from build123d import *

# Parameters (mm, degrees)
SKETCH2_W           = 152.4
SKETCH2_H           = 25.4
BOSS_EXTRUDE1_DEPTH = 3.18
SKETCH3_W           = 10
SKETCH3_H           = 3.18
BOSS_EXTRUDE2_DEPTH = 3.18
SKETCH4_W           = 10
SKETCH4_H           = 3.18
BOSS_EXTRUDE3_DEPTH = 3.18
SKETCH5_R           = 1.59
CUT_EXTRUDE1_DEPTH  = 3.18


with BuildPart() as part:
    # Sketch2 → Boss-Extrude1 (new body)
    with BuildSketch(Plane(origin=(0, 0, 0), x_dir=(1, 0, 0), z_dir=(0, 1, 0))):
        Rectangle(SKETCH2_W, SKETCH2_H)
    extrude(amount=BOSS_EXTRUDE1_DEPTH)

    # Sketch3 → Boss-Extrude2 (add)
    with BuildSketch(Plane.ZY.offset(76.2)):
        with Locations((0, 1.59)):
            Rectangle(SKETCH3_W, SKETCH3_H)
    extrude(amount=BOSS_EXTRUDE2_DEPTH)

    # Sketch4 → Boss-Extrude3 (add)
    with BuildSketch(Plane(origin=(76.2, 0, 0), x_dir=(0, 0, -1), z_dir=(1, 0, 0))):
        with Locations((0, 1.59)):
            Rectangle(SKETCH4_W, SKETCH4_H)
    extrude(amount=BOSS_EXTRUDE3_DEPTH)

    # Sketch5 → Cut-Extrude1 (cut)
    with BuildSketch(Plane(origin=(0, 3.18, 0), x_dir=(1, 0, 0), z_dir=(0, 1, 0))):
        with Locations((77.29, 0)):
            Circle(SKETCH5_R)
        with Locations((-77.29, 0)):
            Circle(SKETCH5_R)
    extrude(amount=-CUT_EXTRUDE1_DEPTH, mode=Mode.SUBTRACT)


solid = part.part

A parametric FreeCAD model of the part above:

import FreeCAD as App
import Part
import Sketcher
Q = App.Units.Quantity

doc = App.newDocument("Part")
body = doc.addObject("PartDesign::Body", "Body")

# Sketch on XZ plane
sketch1 = body.newObject("Sketcher::SketchObject", "Sketch")
sketch1.AttachmentSupport = (doc.getObject("XZ_Plane"), [""])
sketch1.MapMode = "FlatFace"
sketch1.addGeometry([
    Part.LineSegment(App.Vector(-76, -13, 0), App.Vector(-76, 13, 0)),
    Part.LineSegment(App.Vector(-76, 13, 0), App.Vector(76, 13, 0)),
    Part.LineSegment(App.Vector(76, 13, 0), App.Vector(76, -13, 0)),
    Part.LineSegment(App.Vector(76, -13, 0), App.Vector(-76, -13, 0)),
], False)
sketch1.addConstraint([
    Sketcher.Constraint("Coincident", 0, 2, 1, 1),
    Sketcher.Constraint("Coincident", 1, 2, 2, 1),
    Sketcher.Constraint("Coincident", 2, 2, 3, 1),
    Sketcher.Constraint("Coincident", 3, 2, 0, 1),
    Sketcher.Constraint("Vertical", 0),
    Sketcher.Constraint("Horizontal", 1),
    Sketcher.Constraint("Vertical", 2),
    Sketcher.Constraint("Horizontal", 3),
    Sketcher.Constraint("Symmetric", 0, 2, 2, 2, -1, 1),
    Sketcher.Constraint("DistanceX", 1, 1, 1, 2, Q("6 in")),
    Sketcher.Constraint("DistanceY", 0, 1, 0, 2, Q("1 in")),
])
pad1 = body.newObject("PartDesign::Pad", "Pad")
pad1.Profile = sketch1
pad1.Length = 3.18
pad1.Reversed = True

# Sketch on YZ plane
sketch2 = body.newObject("Sketcher::SketchObject", "Sketch001")
sketch2.AttachmentSupport = (doc.getObject("YZ_Plane"), [""])
sketch2.MapMode = "FlatFace"
sketch2.AttachmentOffset = App.Placement(App.Vector(0, 0, -3 * 25.4), App.Rotation())
sketch2.addGeometry([
    Part.LineSegment(App.Vector(3.2, -5, 0), App.Vector(0, -5, 0)),
    Part.LineSegment(App.Vector(0, -5, 0), App.Vector(0, 5, 0)),
    Part.LineSegment(App.Vector(0, 5, 0), App.Vector(3.2, 5, 0)),
    Part.LineSegment(App.Vector(3.2, 5, 0), App.Vector(3.2, -5, 0)),
], False)
sketch2.addConstraint([
    Sketcher.Constraint("Coincident", 0, 2, 1, 1),
    Sketcher.Constraint("Coincident", 1, 2, 2, 1),
    Sketcher.Constraint("Coincident", 2, 2, 3, 1),
    Sketcher.Constraint("Coincident", 3, 2, 0, 1),
    Sketcher.Constraint("Horizontal", 0),
    Sketcher.Constraint("Vertical", 1),
    Sketcher.Constraint("Horizontal", 2),
    Sketcher.Constraint("Vertical", 3),
    Sketcher.Constraint("Symmetric", 0, 2, 1, 2, -1, 1),
    Sketcher.Constraint("DistanceX", 0, 2, 0, 1, Q("3.18 mm")),
    Sketcher.Constraint("DistanceY", 1, 1, 1, 2, Q("10 mm")),
])
pad2 = body.newObject("PartDesign::Pad", "Pad001")
pad2.Profile = sketch2
pad2.Length = 3.18
pad2.Reversed = True

# Sketch on YZ plane
sketch3 = body.newObject("Sketcher::SketchObject", "Sketch002")
sketch3.AttachmentSupport = (doc.getObject("YZ_Plane"), [""])
sketch3.MapMode = "FlatFace"
sketch3.AttachmentOffset = App.Placement(App.Vector(0, 0, 3 * 25.4), App.Rotation())
sketch3.addGeometry([
    Part.LineSegment(App.Vector(3.2, 5, 0), App.Vector(0, 5, 0)),
    Part.LineSegment(App.Vector(0, 5, 0), App.Vector(0, -5, 0)),
    Part.LineSegment(App.Vector(0, -5, 0), App.Vector(3.2, -5, 0)),
    Part.LineSegment(App.Vector(3.2, -5, 0), App.Vector(3.2, 5, 0)),
], False)
sketch3.addConstraint([
    Sketcher.Constraint("Coincident", 0, 2, 1, 1),
    Sketcher.Constraint("Coincident", 1, 2, 2, 1),
    Sketcher.Constraint("Coincident", 2, 2, 3, 1),
    Sketcher.Constraint("Coincident", 3, 2, 0, 1),
    Sketcher.Constraint("Horizontal", 0),
    Sketcher.Constraint("Vertical", 1),
    Sketcher.Constraint("Horizontal", 2),
    Sketcher.Constraint("Vertical", 3),
    Sketcher.Constraint("Symmetric", 0, 2, 1, 2, -1, 1),
    Sketcher.Constraint("DistanceX", 0, 2, 0, 1, Q("3.18 mm")),
    Sketcher.Constraint("DistanceY", 1, 2, 1, 1, Q("10 mm")),
])
pad3 = body.newObject("PartDesign::Pad", "Pad002")
pad3.Profile = sketch3
pad3.Length = 3.18

# Sketch on XZ plane
sketch4 = body.newObject("Sketcher::SketchObject", "Sketch003")
sketch4.AttachmentSupport = (doc.getObject("XZ_Plane"), [""])
sketch4.MapMode = "FlatFace"
sketch4.AttachmentOffset = App.Placement(App.Vector(0, 0, -3.18), App.Rotation())
sketch4.addGeometry([
    Part.Circle(App.Vector(77.3, 0, 0), App.Vector(0, 0, 1), 1.6),
    Part.Circle(App.Vector(-77.3, 0, 0), App.Vector(0, 0, 1), 1.6),
], False)
sketch4.addConstraint([
    Sketcher.Constraint("Equal", 0, 1),
    Sketcher.Constraint("Symmetric", 0, 3, 1, 3, -1, 1),
    Sketcher.Constraint("PointOnObject", 0, 3, -1),
    Sketcher.Constraint("Diameter", 0, Q("3.18 mm")),
    Sketcher.Constraint("DistanceX", -1, 1, 0, 3, Q("77.29 mm")),
])
pocket1 = body.newObject("PartDesign::Pocket", "Pocket")
pocket1.Profile = sketch4
pocket1.Length = 3.18
pocket1.Reversed = True

doc.recompute()
